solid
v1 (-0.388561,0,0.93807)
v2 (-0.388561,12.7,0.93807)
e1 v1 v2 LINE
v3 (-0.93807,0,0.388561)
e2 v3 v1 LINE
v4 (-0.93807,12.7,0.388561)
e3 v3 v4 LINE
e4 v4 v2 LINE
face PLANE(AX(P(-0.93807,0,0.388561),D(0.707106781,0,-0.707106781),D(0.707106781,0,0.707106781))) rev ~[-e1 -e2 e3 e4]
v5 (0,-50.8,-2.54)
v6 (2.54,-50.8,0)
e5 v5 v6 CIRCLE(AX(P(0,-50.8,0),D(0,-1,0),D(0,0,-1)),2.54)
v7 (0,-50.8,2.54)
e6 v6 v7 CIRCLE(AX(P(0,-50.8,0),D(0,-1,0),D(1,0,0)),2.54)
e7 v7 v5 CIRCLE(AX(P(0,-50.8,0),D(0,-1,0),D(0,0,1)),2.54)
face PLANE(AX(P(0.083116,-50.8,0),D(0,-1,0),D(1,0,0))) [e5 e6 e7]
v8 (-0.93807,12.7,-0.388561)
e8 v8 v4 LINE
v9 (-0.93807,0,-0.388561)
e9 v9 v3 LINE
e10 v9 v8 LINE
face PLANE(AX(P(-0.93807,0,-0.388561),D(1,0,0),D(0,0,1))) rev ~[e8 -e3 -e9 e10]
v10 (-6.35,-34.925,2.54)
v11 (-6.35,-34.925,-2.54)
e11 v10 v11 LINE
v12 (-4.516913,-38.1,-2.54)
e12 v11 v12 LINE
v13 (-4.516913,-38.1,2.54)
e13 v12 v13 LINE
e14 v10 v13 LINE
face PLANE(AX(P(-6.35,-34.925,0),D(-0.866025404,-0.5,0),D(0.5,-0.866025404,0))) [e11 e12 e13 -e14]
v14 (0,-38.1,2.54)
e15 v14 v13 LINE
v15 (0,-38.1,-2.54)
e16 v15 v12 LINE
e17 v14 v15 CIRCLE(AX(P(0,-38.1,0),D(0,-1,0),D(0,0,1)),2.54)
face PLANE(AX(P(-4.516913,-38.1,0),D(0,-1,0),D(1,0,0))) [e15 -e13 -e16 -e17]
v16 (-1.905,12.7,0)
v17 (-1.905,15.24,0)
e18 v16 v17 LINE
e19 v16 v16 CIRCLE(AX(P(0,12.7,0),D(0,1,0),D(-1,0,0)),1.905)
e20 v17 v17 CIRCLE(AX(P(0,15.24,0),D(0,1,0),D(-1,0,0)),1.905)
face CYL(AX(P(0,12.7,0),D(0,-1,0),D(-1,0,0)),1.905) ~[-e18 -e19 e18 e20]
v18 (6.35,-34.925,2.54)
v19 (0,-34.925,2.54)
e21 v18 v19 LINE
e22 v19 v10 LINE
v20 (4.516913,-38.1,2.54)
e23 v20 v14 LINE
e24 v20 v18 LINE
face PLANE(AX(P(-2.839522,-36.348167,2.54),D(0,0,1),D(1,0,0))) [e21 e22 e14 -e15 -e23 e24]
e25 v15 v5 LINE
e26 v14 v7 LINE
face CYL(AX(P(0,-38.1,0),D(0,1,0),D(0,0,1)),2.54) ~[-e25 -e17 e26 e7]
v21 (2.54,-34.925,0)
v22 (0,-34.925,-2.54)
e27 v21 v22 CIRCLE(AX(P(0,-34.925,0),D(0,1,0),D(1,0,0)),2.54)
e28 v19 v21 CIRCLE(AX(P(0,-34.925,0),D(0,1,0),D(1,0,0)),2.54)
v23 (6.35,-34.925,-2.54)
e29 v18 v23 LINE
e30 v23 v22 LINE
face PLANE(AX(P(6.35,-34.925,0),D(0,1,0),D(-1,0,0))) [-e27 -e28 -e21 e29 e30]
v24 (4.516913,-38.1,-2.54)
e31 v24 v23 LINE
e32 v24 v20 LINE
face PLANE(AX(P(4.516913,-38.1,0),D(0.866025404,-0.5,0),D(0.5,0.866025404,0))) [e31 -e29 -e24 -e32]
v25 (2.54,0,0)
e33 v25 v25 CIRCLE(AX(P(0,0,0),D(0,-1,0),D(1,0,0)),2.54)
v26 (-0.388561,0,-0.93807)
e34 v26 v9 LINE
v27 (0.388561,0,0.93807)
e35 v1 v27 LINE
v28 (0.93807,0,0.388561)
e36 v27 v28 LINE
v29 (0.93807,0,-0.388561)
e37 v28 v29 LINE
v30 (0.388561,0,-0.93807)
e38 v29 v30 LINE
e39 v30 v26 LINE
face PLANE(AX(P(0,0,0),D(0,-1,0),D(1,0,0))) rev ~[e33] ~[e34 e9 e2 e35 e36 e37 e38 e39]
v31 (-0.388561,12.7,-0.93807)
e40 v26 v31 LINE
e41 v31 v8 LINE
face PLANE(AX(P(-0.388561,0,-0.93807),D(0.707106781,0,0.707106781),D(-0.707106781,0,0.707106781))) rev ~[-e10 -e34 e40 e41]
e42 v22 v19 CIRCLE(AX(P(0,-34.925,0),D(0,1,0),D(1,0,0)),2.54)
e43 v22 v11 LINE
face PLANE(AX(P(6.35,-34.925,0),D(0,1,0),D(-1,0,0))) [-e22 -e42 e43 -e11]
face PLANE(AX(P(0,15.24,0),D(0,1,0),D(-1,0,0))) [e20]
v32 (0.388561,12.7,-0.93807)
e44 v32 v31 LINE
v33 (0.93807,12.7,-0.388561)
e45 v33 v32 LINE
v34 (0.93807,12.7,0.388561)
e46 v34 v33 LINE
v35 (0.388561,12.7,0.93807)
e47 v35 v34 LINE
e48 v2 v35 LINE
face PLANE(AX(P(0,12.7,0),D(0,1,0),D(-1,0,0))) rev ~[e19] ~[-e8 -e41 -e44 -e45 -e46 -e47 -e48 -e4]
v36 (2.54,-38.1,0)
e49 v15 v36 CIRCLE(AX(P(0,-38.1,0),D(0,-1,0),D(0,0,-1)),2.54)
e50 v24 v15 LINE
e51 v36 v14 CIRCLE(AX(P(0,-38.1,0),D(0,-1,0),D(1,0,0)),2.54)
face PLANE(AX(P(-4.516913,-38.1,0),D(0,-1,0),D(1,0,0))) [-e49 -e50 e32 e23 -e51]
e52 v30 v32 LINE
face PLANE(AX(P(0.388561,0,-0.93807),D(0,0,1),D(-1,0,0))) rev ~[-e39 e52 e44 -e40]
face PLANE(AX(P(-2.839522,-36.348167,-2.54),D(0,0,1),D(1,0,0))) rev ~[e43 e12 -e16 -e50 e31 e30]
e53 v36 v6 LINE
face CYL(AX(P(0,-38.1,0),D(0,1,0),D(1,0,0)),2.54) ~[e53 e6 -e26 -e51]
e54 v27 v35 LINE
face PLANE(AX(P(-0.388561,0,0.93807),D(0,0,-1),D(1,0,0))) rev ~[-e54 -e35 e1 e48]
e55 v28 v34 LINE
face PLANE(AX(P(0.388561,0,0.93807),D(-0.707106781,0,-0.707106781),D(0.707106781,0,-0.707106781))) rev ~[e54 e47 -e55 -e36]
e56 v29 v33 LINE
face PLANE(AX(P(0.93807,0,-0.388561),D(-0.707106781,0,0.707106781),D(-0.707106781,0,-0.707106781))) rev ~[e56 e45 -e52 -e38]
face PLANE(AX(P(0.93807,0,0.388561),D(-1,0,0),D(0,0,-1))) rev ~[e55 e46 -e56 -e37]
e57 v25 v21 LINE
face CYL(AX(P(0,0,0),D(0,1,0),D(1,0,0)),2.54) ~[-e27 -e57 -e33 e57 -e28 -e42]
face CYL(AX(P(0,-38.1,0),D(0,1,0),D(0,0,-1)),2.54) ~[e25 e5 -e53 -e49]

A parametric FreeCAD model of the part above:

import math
import FreeCAD as App
import Part
import Sketcher

V = App.Vector
Q = App.Units.Quantity

doc = App.newDocument("Part")
params = doc.addObject("Spreadsheet::Sheet", "Params")
for row, (alias, value) in enumerate([
    ("sketch1_diameter", "0.2 in"),
    ("pad1_length", "1.5 in"),
    ("pad2_length", "0.5 in"),
    ("sketch3_diameter", "0.15 in"),
    ("pad3_length", "0.1 in"),
    ("sketch4_width", "0.5 in"),
    ("pad4_length", "0.2 in"),
    ("sketch5_radius", "0.1 in"),
    ("pad5_length", "0.5 in"),
], start=1):
    params.set(f"A{row}", alias)
    params.set(f"B{row}", "=" + value)
    params.setAlias(f"B{row}", alias)

body = doc.addObject("PartDesign::Body", "Body")

# Sketch on XZ plane
sketch1 = doc.addObject("Sketcher::SketchObject", "Sketch")
body.addObject(sketch1)
sketch1.AttachmentSupport = (doc.XZ_Plane, [""])
sketch1.MapMode = "FlatFace"
sketch1.addGeometry(Part.Circle(V(0, 0, 0), V(0, 0, 1), 2.5), False)
sketch1.addConstraint(Sketcher.Constraint("Coincident", 0, 3, -1, 1))
sketch1.addConstraint(Sketcher.Constraint("Diameter", 0, Q("0.2 in")))
sketch1.setExpression("Constraints[1]", "Params.sketch1_diameter")
pad1 = doc.addObject("PartDesign::Pad", "Pad")
body.addObject(pad1)
pad1.Profile = sketch1
pad1.setExpression("Length", "Params.pad1_length")

# Sketch on XZ plane
sketch2 = doc.addObject("Sketcher::SketchObject", "Sketch001")
body.addObject(sketch2)
sketch2.AttachmentSupport = (doc.XZ_Plane, [""])
sketch2.MapMode = "FlatFace"
sketch2.addGeometry(Part.LineSegment(V(-0.4, 0.9, 0), V(0.4, 0.9, 0)), False)
sketch2.addGeometry(Part.LineSegment(V(0.4, 0.9, 0), V(0.9, 0.4, 0)), False)
sketch2.addGeometry(Part.LineSegment(V(0.9, 0.4, 0), V(0.9, -0.4, 0)), False)
sketch2.addGeometry(Part.LineSegment(V(0.9, -0.4, 0), V(0.4, -0.9, 0)), False)
sketch2.addGeometry(Part.LineSegment(V(0.4, -0.9, 0), V(-0.4, -0.9, 0)), False)
sketch2.addGeometry(Part.LineSegment(V(-0.4, -0.9, 0), V(-0.9, -0.4, 0)), False)
sketch2.addGeometry(Part.LineSegment(V(-0.9, -0.4, 0), V(-0.9, 0.4, 0)), False)
sketch2.addGeometry(Part.LineSegment(V(-0.9, 0.4, 0), V(-0.4, 0.9, 0)), False)
sketch2.addConstraint(Sketcher.Constraint("Coincident", 0, 2, 1, 1))
sketch2.addConstraint(Sketcher.Constraint("Coincident", 1, 2, 2, 1))
sketch2.addConstraint(Sketcher.Constraint("Coincident", 2, 2, 3, 1))
sketch2.addConstraint(Sketcher.Constraint("Coincident", 3, 2, 4, 1))
sketch2.addConstraint(Sketcher.Constraint("Coincident", 4, 2, 5, 1))
sketch2.addConstraint(Sketcher.Constraint("Coincident", 5, 2, 6, 1))
sketch2.addConstraint(Sketcher.Constraint("Coincident", 6, 2, 7, 1))
sketch2.addConstraint(Sketcher.Constraint("Coincident", 7, 2, 0, 1))
sketch2.addConstraint(Sketcher.Constraint("Horizontal", 0))
sketch2.addConstraint(Sketcher.Constraint("Vertical", 2))
sketch2.addConstraint(Sketcher.Constraint("Horizontal", 4))
sketch2.addConstraint(Sketcher.Constraint("Vertical", 6))
sketch2.addConstraint(Sketcher.Constraint("Symmetric", 0, 2, 4, 2, -1, 1))
sketch2.addConstraint(Sketcher.Constraint("Symmetric", 1, 2, 5, 2, -1, 1))
sketch2.addConstraint(Sketcher.Constraint("Perpendicular", 1, 3))
sketch2.addConstraint(Sketcher.Constraint("Perpendicular", 5, 7))
sketch2.addConstraint(Sketcher.Constraint("Horizontal", 2, 2, 5, 2))
sketch2.addConstraint(Sketcher.Constraint("Horizontal", 1, 2, 6, 2))
sketch2.addConstraint(Sketcher.Constraint("Vertical", 0, 2, 3, 2))
sketch2.addConstraint(Sketcher.Constraint("Equal", 4, 2))
sketch2.addConstraint(Sketcher.Constraint("DistanceX", 0, 1, 0, 2, Q("0.777122 mm")))
sketch2.addConstraint(Sketcher.Constraint("DistanceY", -1, 1, 0, 2, Q("0.93807 mm")))
pad2 = doc.addObject("PartDesign::Pad", "Pad001")
body.addObject(pad2)
pad2.Profile = sketch2
pad2.setExpression("Length", "Params.pad2_length")
pad2.Reversed = True

# Sketch on XZ plane
sketch3 = doc.addObject("Sketcher::SketchObject", "Sketch002")
body.addObject(sketch3)
sketch3.AttachmentSupport = (doc.XZ_Plane, [""])
sketch3.MapMode = "FlatFace"
sketch3.AttachmentOffset = App.Placement(V(0, 0, -0.5 * 25.4), App.Rotation())
sketch3.addGeometry(Part.Circle(V(0, 0, 0), V(0, 0, 1), 1.9), False)
sketch3.addConstraint(Sketcher.Constraint("Coincident", 0, 3, -1, 1))
sketch3.addConstraint(Sketcher.Constraint("Diameter", 0, Q("0.15 in")))
sketch3.setExpression("Constraints[1]", "Params.sketch3_diameter")
pad3 = doc.addObject("PartDesign::Pad", "Pad002")
body.addObject(pad3)
pad3.Profile = sketch3
pad3.setExpression("Length", "Params.pad3_length")
pad3.Reversed = True

# Sketch on XY plane
sketch4 = doc.addObject("Sketcher::SketchObject", "Sketch003")
body.addObject(sketch4)
sketch4.AttachmentSupport = (doc.XY_Plane, [""])
sketch4.MapMode = "FlatFace"
sketch4.addGeometry(Part.LineSegment(V(-6.3, -34.9, 0), V(-4.5, -38.1, 0)), False)
sketch4.addGeometry(Part.LineSegment(V(-4.5, -38.1, 0), V(4.5, -38.1, 0)), False)
sketch4.addGeometry(Part.LineSegment(V(4.5, -38.1, 0), V(6.3, -34.9, 0)), False)
sketch4.addGeometry(Part.LineSegment(V(6.3, -34.9, 0), V(-6.3, -34.9, 0)), False)
sketch4.addConstraint(Sketcher.Constraint("Coincident", 0, 2, 1, 1))
sketch4.addConstraint(Sketcher.Constraint("Coincident", 1, 2, 2, 1))
sketch4.addConstraint(Sketcher.Constraint("Coincident", 2, 2, 3, 1))
sketch4.addConstraint(Sketcher.Constraint("Coincident", 3, 2, 0, 1))
sketch4.addConstraint(Sketcher.Constraint("Horizontal", 1))
sketch4.addConstraint(Sketcher.Constraint("Horizontal", 3))
sketch4.addConstraint(Sketcher.Constraint("Equal", 0, 2))
sketch4.addConstraint(Sketcher.Constraint("DistanceX", 3, 2, 3, 1, Q("0.5 in")))
sketch4.addConstraint(Sketcher.Constraint("Angle", 0, Q("-60 deg")))
sketch4.addConstraint(Sketcher.Constraint("DistanceY", 0, 2, -1, 1, Q("1.5 in")))
sketch4.addConstraint(Sketcher.Constraint("DistanceX", -1, 1, 2, 2, Q("0.25 in")))
sketch4.addConstraint(Sketcher.Constraint("DistanceY", 2, 2, -1, 1, Q("1.375 in")))
sketch4.setExpression("Constraints[7]", "Params.sketch4_width")
pad4 = doc.addObject("PartDesign::Pad", "Pad003")
body.addObject(pad4)
pad4.Profile = sketch4
pad4.setExpression("Length", "Params.pad4_length")
pad4.Midplane = True

# Sketch on XZ plane
sketch5 = doc.addObject("Sketcher::SketchObject", "Sketch004")
body.addObject(sketch5)
sketch5.AttachmentSupport = (doc.XZ_Plane, [""])
sketch5.MapMode = "FlatFace"
sketch5.AttachmentOffset = App.Placement(V(0, 0, 1.5 * 25.4), App.Rotation())
sketch5.addGeometry(Part.ArcOfCircle(Part.Circle(V(0, 0, 0), V(0, 0, 1), 2.5), math.radians(-90), math.radians(0)), False)
sketch5.addGeometry(Part.ArcOfCircle(Part.Circle(V(0, 0, 0), V(0, 0, 1), 2.5), math.radians(0), math.radians(90)), False)
sketch5.addGeometry(Part.ArcOfCircle(Part.Circle(V(0, 0, 0), V(0, 0, 1), 2.5), math.radians(90), math.radians(270)), False)
sketch5.addConstraint(Sketcher.Constraint("Tangent", 0, 2, 1, 1))
sketch5.addConstraint(Sketcher.Constraint("Tangent", 1, 2, 2, 1))
sketch5.addConstraint(Sketcher.Constraint("Tangent", 2, 2, 0, 1))
sketch5.addConstraint(Sketcher.Constraint("Coincident", 0, 3, -1, 1))
sketch5.addConstraint(Sketcher.Constraint("PointOnObject", 0, 2, -1))
sketch5.addConstraint(Sketcher.Constraint("PointOnObject", 1, 2, -2))
sketch5.addConstraint(Sketcher.Constraint("PointOnObject", 2, 2, -2))
sketch5.addConstraint(Sketcher.Constraint("Radius", 0, Q("0.1 in")))
sketch5.setExpression("Constraints[7]", "Params.sketch5_radius")
pad5 = doc.addObject("PartDesign::Pad", "Pad004")
body.addObject(pad5)
pad5.Profile = sketch5
pad5.setExpression("Length", "Params.pad5_length")

doc.recompute()
